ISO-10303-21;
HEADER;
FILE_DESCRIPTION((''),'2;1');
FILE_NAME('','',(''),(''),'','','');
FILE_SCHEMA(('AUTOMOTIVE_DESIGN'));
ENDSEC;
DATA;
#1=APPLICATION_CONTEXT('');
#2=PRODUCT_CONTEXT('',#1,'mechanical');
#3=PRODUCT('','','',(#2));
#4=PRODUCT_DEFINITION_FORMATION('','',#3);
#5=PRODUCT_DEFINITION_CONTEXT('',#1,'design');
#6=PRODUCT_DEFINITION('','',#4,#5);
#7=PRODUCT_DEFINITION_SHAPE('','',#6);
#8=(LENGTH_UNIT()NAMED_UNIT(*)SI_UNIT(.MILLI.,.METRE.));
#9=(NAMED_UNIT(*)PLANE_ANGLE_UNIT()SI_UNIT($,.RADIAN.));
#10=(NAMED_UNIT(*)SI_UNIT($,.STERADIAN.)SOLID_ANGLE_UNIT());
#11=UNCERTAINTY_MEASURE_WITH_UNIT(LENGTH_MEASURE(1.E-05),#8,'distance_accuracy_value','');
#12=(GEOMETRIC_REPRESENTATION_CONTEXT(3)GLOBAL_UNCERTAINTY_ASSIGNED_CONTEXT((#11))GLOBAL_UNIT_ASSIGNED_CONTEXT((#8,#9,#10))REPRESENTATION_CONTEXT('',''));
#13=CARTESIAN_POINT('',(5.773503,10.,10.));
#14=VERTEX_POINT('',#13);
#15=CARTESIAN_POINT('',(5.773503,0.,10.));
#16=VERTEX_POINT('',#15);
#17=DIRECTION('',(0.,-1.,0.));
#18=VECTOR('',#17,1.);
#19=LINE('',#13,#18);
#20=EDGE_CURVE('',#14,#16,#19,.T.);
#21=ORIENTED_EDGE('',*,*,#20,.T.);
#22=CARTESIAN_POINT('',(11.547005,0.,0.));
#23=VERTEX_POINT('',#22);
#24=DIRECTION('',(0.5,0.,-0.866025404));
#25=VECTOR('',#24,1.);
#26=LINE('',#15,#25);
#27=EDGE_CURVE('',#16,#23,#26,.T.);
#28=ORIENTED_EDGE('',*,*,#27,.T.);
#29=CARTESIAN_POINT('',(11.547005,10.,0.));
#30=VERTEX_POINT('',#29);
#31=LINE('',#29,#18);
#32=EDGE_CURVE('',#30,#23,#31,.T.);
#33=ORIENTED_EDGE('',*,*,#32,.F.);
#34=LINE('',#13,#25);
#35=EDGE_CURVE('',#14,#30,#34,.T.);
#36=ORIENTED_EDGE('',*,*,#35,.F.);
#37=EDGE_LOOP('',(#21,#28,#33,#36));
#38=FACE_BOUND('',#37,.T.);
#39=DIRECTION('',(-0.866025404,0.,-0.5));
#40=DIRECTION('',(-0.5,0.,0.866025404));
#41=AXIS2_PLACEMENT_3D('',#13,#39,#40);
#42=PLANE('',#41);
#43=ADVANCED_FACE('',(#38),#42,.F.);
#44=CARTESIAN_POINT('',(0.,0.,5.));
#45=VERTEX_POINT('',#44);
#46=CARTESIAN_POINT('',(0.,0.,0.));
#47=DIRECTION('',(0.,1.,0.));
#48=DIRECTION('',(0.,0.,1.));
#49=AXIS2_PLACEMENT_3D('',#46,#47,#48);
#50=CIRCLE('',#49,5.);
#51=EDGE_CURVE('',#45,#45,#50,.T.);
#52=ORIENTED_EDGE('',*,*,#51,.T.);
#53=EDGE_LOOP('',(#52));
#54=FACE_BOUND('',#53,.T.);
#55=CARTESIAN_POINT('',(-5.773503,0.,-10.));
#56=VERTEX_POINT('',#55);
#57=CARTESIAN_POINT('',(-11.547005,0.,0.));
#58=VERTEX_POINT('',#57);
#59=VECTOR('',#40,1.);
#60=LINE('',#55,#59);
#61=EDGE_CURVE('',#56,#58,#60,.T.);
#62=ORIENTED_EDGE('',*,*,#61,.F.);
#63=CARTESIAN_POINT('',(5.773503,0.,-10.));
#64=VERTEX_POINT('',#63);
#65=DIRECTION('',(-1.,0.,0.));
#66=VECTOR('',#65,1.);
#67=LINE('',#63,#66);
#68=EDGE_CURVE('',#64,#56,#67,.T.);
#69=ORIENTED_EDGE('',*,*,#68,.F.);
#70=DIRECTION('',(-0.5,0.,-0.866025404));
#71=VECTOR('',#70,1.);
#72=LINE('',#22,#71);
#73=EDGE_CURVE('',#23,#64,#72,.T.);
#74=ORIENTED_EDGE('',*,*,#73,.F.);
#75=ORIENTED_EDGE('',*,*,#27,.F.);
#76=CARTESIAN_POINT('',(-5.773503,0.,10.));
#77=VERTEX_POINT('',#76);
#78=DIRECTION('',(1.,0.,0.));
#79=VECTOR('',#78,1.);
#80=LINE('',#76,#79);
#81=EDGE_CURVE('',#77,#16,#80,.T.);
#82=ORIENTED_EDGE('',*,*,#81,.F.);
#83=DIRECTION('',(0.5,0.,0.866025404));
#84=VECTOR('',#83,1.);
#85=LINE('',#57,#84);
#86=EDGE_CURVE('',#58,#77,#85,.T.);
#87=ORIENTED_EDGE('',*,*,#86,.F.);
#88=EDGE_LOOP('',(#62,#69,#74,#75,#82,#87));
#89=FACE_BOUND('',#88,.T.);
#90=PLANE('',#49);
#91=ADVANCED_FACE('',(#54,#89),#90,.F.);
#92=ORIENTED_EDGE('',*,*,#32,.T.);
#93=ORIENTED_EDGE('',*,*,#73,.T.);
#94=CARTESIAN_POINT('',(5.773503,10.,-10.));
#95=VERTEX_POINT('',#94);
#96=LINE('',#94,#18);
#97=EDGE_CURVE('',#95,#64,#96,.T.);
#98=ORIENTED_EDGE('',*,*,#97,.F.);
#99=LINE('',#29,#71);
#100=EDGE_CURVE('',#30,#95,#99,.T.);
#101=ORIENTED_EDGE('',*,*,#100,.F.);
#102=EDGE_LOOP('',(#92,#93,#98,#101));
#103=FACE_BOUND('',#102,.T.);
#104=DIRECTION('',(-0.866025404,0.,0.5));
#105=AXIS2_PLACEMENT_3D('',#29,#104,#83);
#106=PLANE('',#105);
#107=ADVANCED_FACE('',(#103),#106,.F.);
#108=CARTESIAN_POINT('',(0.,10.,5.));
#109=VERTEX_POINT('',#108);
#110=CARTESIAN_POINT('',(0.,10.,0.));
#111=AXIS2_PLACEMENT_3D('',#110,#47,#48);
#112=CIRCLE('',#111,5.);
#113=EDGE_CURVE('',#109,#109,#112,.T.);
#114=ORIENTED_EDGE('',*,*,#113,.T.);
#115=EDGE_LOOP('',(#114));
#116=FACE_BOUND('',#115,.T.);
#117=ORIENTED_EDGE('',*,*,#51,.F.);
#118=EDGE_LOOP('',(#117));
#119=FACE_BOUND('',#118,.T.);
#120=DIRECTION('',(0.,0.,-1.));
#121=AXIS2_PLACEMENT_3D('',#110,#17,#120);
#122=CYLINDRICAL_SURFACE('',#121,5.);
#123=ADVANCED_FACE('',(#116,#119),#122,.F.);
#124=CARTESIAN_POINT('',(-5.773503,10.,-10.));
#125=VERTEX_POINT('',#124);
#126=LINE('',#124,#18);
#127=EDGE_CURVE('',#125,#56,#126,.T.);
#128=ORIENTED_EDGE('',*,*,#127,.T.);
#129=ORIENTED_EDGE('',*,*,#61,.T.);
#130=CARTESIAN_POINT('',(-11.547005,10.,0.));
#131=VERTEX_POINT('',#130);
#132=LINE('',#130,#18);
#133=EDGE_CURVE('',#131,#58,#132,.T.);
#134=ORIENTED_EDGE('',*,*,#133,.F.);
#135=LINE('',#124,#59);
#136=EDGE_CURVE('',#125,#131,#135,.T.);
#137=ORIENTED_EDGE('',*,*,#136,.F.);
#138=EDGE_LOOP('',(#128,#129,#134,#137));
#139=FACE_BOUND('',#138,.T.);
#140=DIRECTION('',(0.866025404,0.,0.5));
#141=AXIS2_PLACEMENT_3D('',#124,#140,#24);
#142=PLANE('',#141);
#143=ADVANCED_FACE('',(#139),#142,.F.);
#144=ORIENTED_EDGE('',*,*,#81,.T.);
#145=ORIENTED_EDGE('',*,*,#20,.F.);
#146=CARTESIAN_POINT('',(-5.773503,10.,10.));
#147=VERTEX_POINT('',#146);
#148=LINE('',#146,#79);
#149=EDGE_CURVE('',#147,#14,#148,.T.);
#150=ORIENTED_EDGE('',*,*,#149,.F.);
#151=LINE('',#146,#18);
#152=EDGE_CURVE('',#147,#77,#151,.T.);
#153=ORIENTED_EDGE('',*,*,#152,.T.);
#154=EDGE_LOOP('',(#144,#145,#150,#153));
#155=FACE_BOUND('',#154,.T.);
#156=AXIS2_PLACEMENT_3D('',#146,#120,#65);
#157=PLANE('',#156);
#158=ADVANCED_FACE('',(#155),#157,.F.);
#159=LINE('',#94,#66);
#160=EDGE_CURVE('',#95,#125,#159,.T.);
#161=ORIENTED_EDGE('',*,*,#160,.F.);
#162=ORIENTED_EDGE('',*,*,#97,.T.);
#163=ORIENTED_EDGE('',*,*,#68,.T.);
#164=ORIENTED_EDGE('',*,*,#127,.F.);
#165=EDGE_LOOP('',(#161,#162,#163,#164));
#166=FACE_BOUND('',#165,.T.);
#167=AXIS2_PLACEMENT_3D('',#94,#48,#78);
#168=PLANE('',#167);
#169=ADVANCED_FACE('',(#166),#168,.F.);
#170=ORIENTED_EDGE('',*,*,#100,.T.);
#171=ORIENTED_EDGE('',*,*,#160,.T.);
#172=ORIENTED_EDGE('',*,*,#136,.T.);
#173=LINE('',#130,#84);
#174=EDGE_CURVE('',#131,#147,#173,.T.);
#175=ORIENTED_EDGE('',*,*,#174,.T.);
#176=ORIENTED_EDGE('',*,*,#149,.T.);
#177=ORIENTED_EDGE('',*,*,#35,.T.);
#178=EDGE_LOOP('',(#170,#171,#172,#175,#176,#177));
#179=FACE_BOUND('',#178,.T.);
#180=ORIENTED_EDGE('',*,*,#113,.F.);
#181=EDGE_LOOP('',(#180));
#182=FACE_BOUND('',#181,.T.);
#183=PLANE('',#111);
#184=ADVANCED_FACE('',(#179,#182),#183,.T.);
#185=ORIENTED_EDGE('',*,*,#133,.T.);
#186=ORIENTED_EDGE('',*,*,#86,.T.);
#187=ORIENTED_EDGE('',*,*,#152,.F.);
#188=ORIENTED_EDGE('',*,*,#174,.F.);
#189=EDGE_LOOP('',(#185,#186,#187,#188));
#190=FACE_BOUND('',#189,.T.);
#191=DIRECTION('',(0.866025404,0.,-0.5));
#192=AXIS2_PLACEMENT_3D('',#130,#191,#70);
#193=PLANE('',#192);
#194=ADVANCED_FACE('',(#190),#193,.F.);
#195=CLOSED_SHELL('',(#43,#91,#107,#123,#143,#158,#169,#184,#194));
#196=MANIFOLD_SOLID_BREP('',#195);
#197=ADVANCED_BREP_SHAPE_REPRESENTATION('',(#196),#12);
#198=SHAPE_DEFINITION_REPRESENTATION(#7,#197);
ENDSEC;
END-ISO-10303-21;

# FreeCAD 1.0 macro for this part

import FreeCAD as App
import Part
import Sketcher

V = App.Vector
Q = App.Units.Quantity

doc = App.newDocument("Part")
body = doc.addObject("PartDesign::Body", "Body")

sketch1 = doc.addObject("Sketcher::SketchObject", "Sketch")
body.addObject(sketch1)
sketch1.AttachmentSupport = (doc.XZ_Plane, [""])
sketch1.MapMode = "FlatFace"
sketch1.addGeometry(Part.LineSegment(V(11.547005, 0, 0), V(5.773503, -10, 0)), False)
sketch1.addGeometry(Part.LineSegment(V(5.773503, -10, 0), V(-5.773503, -10, 0)), False)
sketch1.addGeometry(Part.LineSegment(V(-5.773503, -10, 0), V(-11.547005, 0, 0)), False)
sketch1.addGeometry(Part.LineSegment(V(-11.547005, 0, 0), V(-5.773503, 10, 0)), False)
sketch1.addGeometry(Part.LineSegment(V(-5.773503, 10, 0), V(5.773503, 10, 0)), False)
sketch1.addGeometry(Part.LineSegment(V(5.773503, 10, 0), V(11.547005, 0, 0)), False)
sketch1.addGeometry(Part.Circle(V(0, 0, 0), V(0, 0, 1), 5), False)
sketch1.addConstraint(Sketcher.Constraint("Coincident", 0, 2, 1, 1))
sketch1.addConstraint(Sketcher.Constraint("Coincident", 1, 2, 2, 1))
sketch1.addConstraint(Sketcher.Constraint("Coincident", 2, 2, 3, 1))
sketch1.addConstraint(Sketcher.Constraint("Coincident", 3, 2, 4, 1))
sketch1.addConstraint(Sketcher.Constraint("Coincident", 4, 2, 5, 1))
sketch1.addConstraint(Sketcher.Constraint("Coincident", 5, 2, 0, 1))
sketch1.addConstraint(Sketcher.Constraint("Horizontal", 1))
sketch1.addConstraint(Sketcher.Constraint("Horizontal", 4))
sketch1.addConstraint(Sketcher.Constraint("Coincident", 6, 3, -1, 1))
sketch1.addConstraint(Sketcher.Constraint("Symmetric", 0, 2, 3, 2, -1, 1))
sketch1.addConstraint(Sketcher.Constraint("Symmetric", 2, 2, 5, 2, -1, 1))
sketch1.addConstraint(Sketcher.Constraint("PointOnObject", 2, 2, -1))
sketch1.addConstraint(Sketcher.Constraint("Parallel", 2, 5))
sketch1.addConstraint(Sketcher.Constraint("Vertical", 1, 2, 3, 2))
sketch1.addConstraint(Sketcher.Constraint("Diameter", 6, 10.0))
sketch1.addConstraint(Sketcher.Constraint("Angle", 0, Q("-120 deg")))
sketch1.addConstraint(Sketcher.Constraint("DistanceY", 0, 2, -1, 1, 10.0))
sketch1.addConstraint(Sketcher.Constraint("DistanceX", 1, 2, 1, 1, 11.547005))
pad1 = doc.addObject("PartDesign::Pad", "Pad")
body.addObject(pad1)
pad1.Profile = sketch1
pad1.Length = 10
pad1.Reversed = True

doc.recompute()
